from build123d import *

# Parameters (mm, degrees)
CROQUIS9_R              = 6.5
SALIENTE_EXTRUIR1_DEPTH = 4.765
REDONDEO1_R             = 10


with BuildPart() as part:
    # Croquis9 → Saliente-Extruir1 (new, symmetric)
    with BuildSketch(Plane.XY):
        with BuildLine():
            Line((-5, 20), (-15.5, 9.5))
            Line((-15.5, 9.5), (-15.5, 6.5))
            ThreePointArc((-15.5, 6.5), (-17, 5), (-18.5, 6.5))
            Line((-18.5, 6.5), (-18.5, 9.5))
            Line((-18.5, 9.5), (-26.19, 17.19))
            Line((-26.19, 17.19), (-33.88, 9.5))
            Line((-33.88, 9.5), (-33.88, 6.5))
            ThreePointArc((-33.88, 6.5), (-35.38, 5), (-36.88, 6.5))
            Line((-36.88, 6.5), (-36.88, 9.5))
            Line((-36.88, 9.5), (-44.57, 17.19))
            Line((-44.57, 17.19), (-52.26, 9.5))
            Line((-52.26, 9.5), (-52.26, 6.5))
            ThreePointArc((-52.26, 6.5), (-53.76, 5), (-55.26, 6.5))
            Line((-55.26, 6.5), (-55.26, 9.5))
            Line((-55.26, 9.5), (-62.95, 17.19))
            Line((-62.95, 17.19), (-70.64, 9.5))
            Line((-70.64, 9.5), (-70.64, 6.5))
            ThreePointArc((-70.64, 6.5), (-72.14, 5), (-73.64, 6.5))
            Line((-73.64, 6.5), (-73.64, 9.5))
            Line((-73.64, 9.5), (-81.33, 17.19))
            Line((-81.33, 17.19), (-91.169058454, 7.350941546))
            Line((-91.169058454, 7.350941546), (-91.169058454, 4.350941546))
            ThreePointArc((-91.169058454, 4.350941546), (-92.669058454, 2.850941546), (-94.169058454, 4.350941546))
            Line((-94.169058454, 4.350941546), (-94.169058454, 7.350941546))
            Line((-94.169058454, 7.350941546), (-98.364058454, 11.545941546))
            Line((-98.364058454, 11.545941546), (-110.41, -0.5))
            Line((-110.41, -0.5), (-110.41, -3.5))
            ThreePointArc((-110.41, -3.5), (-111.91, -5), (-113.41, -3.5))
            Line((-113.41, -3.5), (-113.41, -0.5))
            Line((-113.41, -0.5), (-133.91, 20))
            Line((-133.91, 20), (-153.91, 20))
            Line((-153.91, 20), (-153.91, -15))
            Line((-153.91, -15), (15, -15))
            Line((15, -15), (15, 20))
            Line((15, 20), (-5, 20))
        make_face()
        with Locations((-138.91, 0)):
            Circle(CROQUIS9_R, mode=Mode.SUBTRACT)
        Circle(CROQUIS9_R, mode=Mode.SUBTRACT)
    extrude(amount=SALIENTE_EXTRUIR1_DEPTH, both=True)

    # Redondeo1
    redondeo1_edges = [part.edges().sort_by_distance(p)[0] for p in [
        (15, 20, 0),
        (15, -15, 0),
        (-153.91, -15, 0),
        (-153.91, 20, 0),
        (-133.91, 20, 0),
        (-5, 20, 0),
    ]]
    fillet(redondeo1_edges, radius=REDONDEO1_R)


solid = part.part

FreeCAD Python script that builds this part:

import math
import FreeCAD as App
import Part
import Sketcher
from FreeCAD import Vector
Q = App.Units.Quantity


def edges_at(feature, points):
    """Names of the edges that pass closest to the given points."""
    edges = feature.Shape.Edges
    near = lambda p: min(range(len(edges)), key=lambda i: edges[i].distToShape(Part.Vertex(*p))[0])
    return sorted({f"Edge{near(p) + 1}" for p in points})

doc = App.newDocument("Part")
params = doc.addObject("Spreadsheet::Sheet", "Params")
for row, (alias, value) in enumerate([
    ("sketch1_diameter", "13 mm"),
    ("sketch1_radius", "1.5 mm"),
    ("sketch1_width", "20 mm"),
    ("sketch1_height", "3 mm"),
    ("sketch1_height2", "35 mm"),
    ("pad1_length", "9.53 mm"),
    ("fillet_radius", "10 mm"),
], start=1):
    params.set(f"A{row}", alias)
    params.set(f"B{row}", "=" + value)
    params.setAlias(f"B{row}", alias)

body = doc.addObject("PartDesign::Body", "Body")

# Sketch on XY plane
sketch1 = body.newObject("Sketcher::SketchObject", "Sketch")
sketch1.AttachmentSupport = (doc.getObject("XY_Plane"), [""])
sketch1.MapMode = "FlatFace"
sketch1.addGeometry([
    Part.LineSegment(Vector(-5, 20, 0), Vector(-15.5, 9.5, 0)),  # 0
    Part.LineSegment(Vector(-15.5, 9.5, 0), Vector(-15.5, 6.5, 0)),  # 1
    Part.ArcOfCircle(Part.Circle(Vector(-17, 6.5, 0), Vector(0, 0, 1), 1.5), math.radians(180), math.radians(360)),  # 2
    Part.LineSegment(Vector(-18.5, 6.5, 0), Vector(-18.5, 9.5, 0)),  # 3
    Part.LineSegment(Vector(-18.5, 9.5, 0), Vector(-26.19, 17.19, 0)),  # 4
    Part.LineSegment(Vector(-26.19, 17.19, 0), Vector(-33.88, 9.5, 0)),  # 5
    Part.LineSegment(Vector(-33.88, 9.5, 0), Vector(-33.88, 6.5, 0)),  # 6
    Part.ArcOfCircle(Part.Circle(Vector(-35.38, 6.5, 0), Vector(0, 0, 1), 1.5), math.radians(180), math.radians(360)),  # 7
    Part.LineSegment(Vector(-36.88, 6.5, 0), Vector(-36.88, 9.5, 0)),  # 8
    Part.LineSegment(Vector(-36.88, 9.5, 0), Vector(-44.57, 17.19, 0)),  # 9
    Part.LineSegment(Vector(-44.57, 17.19, 0), Vector(-52.26, 9.5, 0)),  # 10
    Part.LineSegment(Vector(-52.26, 9.5, 0), Vector(-52.26, 6.5, 0)),  # 11
    Part.ArcOfCircle(Part.Circle(Vector(-53.76, 6.5, 0), Vector(0, 0, 1), 1.5), math.radians(180), math.radians(360)),  # 12
    Part.LineSegment(Vector(-55.26, 6.5, 0), Vector(-55.26, 9.5, 0)),  # 13
    Part.LineSegment(Vector(-55.26, 9.5, 0), Vector(-62.95, 17.19, 0)),  # 14
    Part.LineSegment(Vector(-62.95, 17.19, 0), Vector(-70.64, 9.5, 0)),  # 15
    Part.LineSegment(Vector(-70.64, 9.5, 0), Vector(-70.64, 6.5, 0)),  # 16
    Part.ArcOfCircle(Part.Circle(Vector(-72.14, 6.5, 0), Vector(0, 0, 1), 1.5), math.radians(180), math.radians(360)),  # 17
    Part.LineSegment(Vector(-73.64, 6.5, 0), Vector(-73.64, 9.5, 0)),  # 18
    Part.LineSegment(Vector(-73.64, 9.5, 0), Vector(-81.33, 17.19, 0)),  # 19
    Part.LineSegment(Vector(-81.33, 17.19, 0), Vector(-91.169058, 7.350942, 0)),  # 20
    Part.LineSegment(Vector(-91.169058, 7.350942, 0), Vector(-91.169058, 4.350942, 0)),  # 21
    Part.ArcOfCircle(Part.Circle(Vector(-92.669058, 4.350942, 0), Vector(0, 0, 1), 1.5), math.radians(180), math.radians(360)),  # 22
    Part.LineSegment(Vector(-94.169058, 4.350942, 0), Vector(-94.169058, 7.350942, 0)),  # 23
    Part.LineSegment(Vector(-94.169058, 7.350942, 0), Vector(-98.364058, 11.545942, 0)),  # 24
    Part.LineSegment(Vector(-98.364058, 11.545942, 0), Vector(-110.41, -0.5, 0)),  # 25
    Part.LineSegment(Vector(-110.41, -0.5, 0), Vector(-110.41, -3.5, 0)),  # 26
    Part.ArcOfCircle(Part.Circle(Vector(-111.91, -3.5, 0), Vector(0, 0, 1), 1.5), math.radians(180), math.radians(360)),  # 27
    Part.LineSegment(Vector(-113.41, -3.5, 0), Vector(-113.41, -0.5, 0)),  # 28
    Part.LineSegment(Vector(-113.41, -0.5, 0), Vector(-133.91, 20, 0)),  # 29
    Part.LineSegment(Vector(-133.91, 20, 0), Vector(-153.91, 20, 0)),  # 30
    Part.LineSegment(Vector(-153.91, 20, 0), Vector(-153.91, -15, 0)),  # 31
    Part.LineSegment(Vector(-153.91, -15, 0), Vector(15, -15, 0)),  # 32
    Part.LineSegment(Vector(15, -15, 0), Vector(15, 20, 0)),  # 33
    Part.LineSegment(Vector(15, 20, 0), Vector(-5, 20, 0)),  # 34
    Part.Circle(Vector(-138.91, 0, 0), Vector(0, 0, 1), 6.5),  # 35
    Part.Circle(Vector(0, 0, 0), Vector(0, 0, 1), 6.5),  # 36
], False)
sketch1.addConstraint([
    Sketcher.Constraint("Coincident", 0, 2, 1, 1),
    Sketcher.Constraint("Tangent", 1, 2, 2, 2),
    Sketcher.Constraint("Tangent", 2, 1, 3, 1),
    Sketcher.Constraint("Coincident", 3, 2, 4, 1),
    Sketcher.Constraint("Coincident", 4, 2, 5, 1),
    Sketcher.Constraint("Coincident", 5, 2, 6, 1),
    Sketcher.Constraint("Tangent", 6, 2, 7, 2),
    Sketcher.Constraint("Tangent", 7, 1, 8, 1),
    Sketcher.Constraint("Coincident", 8, 2, 9, 1),
    Sketcher.Constraint("Coincident", 9, 2, 10, 1),
    Sketcher.Constraint("Coincident", 10, 2, 11, 1),
    Sketcher.Constraint("Tangent", 11, 2, 12, 2),
    Sketcher.Constraint("Tangent", 12, 1, 13, 1),
    Sketcher.Constraint("Coincident", 13, 2, 14, 1),
    Sketcher.Constraint("Coincident", 14, 2, 15, 1),
    Sketcher.Constraint("Coincident", 15, 2, 16, 1),
    Sketcher.Constraint("Tangent", 16, 2, 17, 2),
    Sketcher.Constraint("Tangent", 17, 1, 18, 1),
    Sketcher.Constraint("Coincident", 18, 2, 19, 1),
    Sketcher.Constraint("Coincident", 19, 2, 20, 1),
    Sketcher.Constraint("Coincident", 20, 2, 21, 1),
    Sketcher.Constraint("Tangent", 21, 2, 22, 2),
    Sketcher.Constraint("Tangent", 22, 1, 23, 1),
    Sketcher.Constraint("Coincident", 23, 2, 24, 1),
    Sketcher.Constraint("Coincident", 24, 2, 25, 1),
    Sketcher.Constraint("Coincident", 25, 2, 26, 1),
    Sketcher.Constraint("Tangent", 26, 2, 27, 2),
    Sketcher.Constraint("Tangent", 27, 1, 28, 1),
    Sketcher.Constraint("Coincident", 28, 2, 29, 1),
    Sketcher.Constraint("Coincident", 29, 2, 30, 1),
    Sketcher.Constraint("Coincident", 30, 2, 31, 1),
    Sketcher.Constraint("Coincident", 31, 2, 32, 1),
    Sketcher.Constraint("Coincident", 32, 2, 33, 1),
    Sketcher.Constraint("Coincident", 33, 2, 34, 1),
    Sketcher.Constraint("Coincident", 34, 2, 0, 1),
    Sketcher.Constraint("Vertical", 1),
    Sketcher.Constraint("Vertical", 3),
    Sketcher.Constraint("Vertical", 6),
    Sketcher.Constraint("Vertical", 8),
    Sketcher.Constraint("Vertical", 11),
    Sketcher.Constraint("Vertical", 13),
    Sketcher.Constraint("Vertical", 16),
    Sketcher.Constraint("Vertical", 18),
    Sketcher.Constraint("Vertical", 21),
    Sketcher.Constraint("Vertical", 23),
    Sketcher.Constraint("Vertical", 26),
    Sketcher.Constraint("Vertical", 28),
    Sketcher.Constraint("Horizontal", 30),
    Sketcher.Constraint("Vertical", 31),
    Sketcher.Constraint("Horizontal", 32),
    Sketcher.Constraint("Vertical", 33),
    Sketcher.Constraint("Horizontal", 34),
    Sketcher.Constraint("Coincident", 36, 3, -1, 1),
    Sketcher.Constraint("Equal", 2, 7),
    Sketcher.Constraint("Equal", 7, 12),
    Sketcher.Constraint("Equal", 12, 17),
    Sketcher.Constraint("Equal", 17, 22),
    Sketcher.Constraint("Equal", 22, 27),
    Sketcher.Constraint("Equal", 35, 36),
    Sketcher.Constraint("PointOnObject", 35, 3, -1),
    Sketcher.Constraint("Perpendicular", 0, 4),
    Sketcher.Constraint("Perpendicular", 4, 5),
    Sketcher.Constraint("Perpendicular", 5, 9),
    Sketcher.Constraint("Perpendicular", 9, 10),
    Sketcher.Constraint("Perpendicular", 10, 14),
    Sketcher.Constraint("Perpendicular", 14, 15),
    Sketcher.Constraint("Perpendicular", 15, 19),
    Sketcher.Constraint("Perpendicular", 19, 20),
    Sketcher.Constraint("Perpendicular", 20, 24),
    Sketcher.Constraint("Perpendicular", 24, 25),
    Sketcher.Constraint("Perpendicular", 25, 29),
    Sketcher.Constraint("Horizontal", 2, 3, 7, 3),
    Sketcher.Constraint("Horizontal", 7, 3, 12, 3),
    Sketcher.Constraint("Horizontal", 12, 3, 17, 3),
    Sketcher.Constraint("Horizontal", 0, 2, 3, 2),
    Sketcher.Constraint("Horizontal", 3, 2, 5, 2),
    Sketcher.Constraint("Horizontal", 5, 2, 8, 2),
    Sketcher.Constraint("Horizontal", 4, 2, 9, 2),
    Sketcher.Constraint("Horizontal", 8, 2, 10, 2),
    Sketcher.Constraint("Horizontal", 10, 2, 13, 2),
    Sketcher.Constraint("Horizontal", 9, 2, 14, 2),
    Sketcher.Constraint("Horizontal", 13, 2, 15, 2),
    Sketcher.Constraint("Horizontal", 15, 2, 18, 2),
    Sketcher.Constraint("Horizontal", 14, 2, 19, 2),
    Sketcher.Constraint("Horizontal", 20, 2, 23, 2),
    Sketcher.Constraint("Horizontal", 25, 2, 28, 2),
    Sketcher.Constraint("Horizontal", 30, 2, 33, 2),
    Sketcher.Constraint("Equal", 30, 34),
    Sketcher.Constraint("Equal", 18, 21),
    Sketcher.Constraint("Equal", 23, 26),
    Sketcher.Constraint("Equal", 4, 5),
    Sketcher.Constraint("Diameter", 35, Q("13 mm")),
    Sketcher.Constraint("Radius", 2, Q("1.5 mm")),
    Sketcher.Constraint("DistanceX", 30, 2, 30, 1, Q("20 mm")),
    Sketcher.Constraint("DistanceY", 1, 2, 1, 1, Q("3 mm")),
    Sketcher.Constraint("DistanceY", 31, 2, 31, 1, Q("35 mm")),
    Sketcher.Constraint("DistanceX", 2, 3, -1, 1, Q("17 mm")),
    Sketcher.Constraint("DistanceY", -1, 1, 29, 2, Q("20 mm")),
    Sketcher.Constraint("DistanceX", -1, 1, 32, 2, Q("15 mm")),
    Sketcher.Constraint("DistanceY", 27, 3, 17, 3, Q("10 mm")),
    Sketcher.Constraint("DistanceX", 35, 3, 27, 3, Q("27 mm")),
    Sketcher.Constraint("DistanceX", 32, 1, 32, 2, Q("168.91 mm")),
    Sketcher.Constraint("DistanceX", 7, 3, -1, 1, Q("35.38 mm")),
    Sketcher.Constraint("Distance", 20, Q("13.91453 mm")),
])
sketch1.setExpression("Constraints[91]", "Params.sketch1_diameter")
sketch1.setExpression("Constraints[92]", "Params.sketch1_radius")
sketch1.setExpression("Constraints[93]", "Params.sketch1_width")
sketch1.setExpression("Constraints[94]", "Params.sketch1_height")
sketch1.setExpression("Constraints[95]", "Params.sketch1_height2")
pad1 = body.newObject("PartDesign::Pad", "Pad")
pad1.Profile = sketch1
pad1.setExpression("Length", "Params.pad1_length")
pad1.Midplane = True
doc.recompute()

fillet = body.newObject("PartDesign::Fillet", "Fillet")
fillet.Base = (pad1, edges_at(pad1, [
    (15, 20, 0),
    (15, -15, 0),
    (-153.91, -15, 0),
    (-153.91, 20, 0),
    (-133.91, 20, 0),
    (-5, 20, 0),
]))
fillet.setExpression("Radius", "Params.fillet_radius")

doc.recompute()
